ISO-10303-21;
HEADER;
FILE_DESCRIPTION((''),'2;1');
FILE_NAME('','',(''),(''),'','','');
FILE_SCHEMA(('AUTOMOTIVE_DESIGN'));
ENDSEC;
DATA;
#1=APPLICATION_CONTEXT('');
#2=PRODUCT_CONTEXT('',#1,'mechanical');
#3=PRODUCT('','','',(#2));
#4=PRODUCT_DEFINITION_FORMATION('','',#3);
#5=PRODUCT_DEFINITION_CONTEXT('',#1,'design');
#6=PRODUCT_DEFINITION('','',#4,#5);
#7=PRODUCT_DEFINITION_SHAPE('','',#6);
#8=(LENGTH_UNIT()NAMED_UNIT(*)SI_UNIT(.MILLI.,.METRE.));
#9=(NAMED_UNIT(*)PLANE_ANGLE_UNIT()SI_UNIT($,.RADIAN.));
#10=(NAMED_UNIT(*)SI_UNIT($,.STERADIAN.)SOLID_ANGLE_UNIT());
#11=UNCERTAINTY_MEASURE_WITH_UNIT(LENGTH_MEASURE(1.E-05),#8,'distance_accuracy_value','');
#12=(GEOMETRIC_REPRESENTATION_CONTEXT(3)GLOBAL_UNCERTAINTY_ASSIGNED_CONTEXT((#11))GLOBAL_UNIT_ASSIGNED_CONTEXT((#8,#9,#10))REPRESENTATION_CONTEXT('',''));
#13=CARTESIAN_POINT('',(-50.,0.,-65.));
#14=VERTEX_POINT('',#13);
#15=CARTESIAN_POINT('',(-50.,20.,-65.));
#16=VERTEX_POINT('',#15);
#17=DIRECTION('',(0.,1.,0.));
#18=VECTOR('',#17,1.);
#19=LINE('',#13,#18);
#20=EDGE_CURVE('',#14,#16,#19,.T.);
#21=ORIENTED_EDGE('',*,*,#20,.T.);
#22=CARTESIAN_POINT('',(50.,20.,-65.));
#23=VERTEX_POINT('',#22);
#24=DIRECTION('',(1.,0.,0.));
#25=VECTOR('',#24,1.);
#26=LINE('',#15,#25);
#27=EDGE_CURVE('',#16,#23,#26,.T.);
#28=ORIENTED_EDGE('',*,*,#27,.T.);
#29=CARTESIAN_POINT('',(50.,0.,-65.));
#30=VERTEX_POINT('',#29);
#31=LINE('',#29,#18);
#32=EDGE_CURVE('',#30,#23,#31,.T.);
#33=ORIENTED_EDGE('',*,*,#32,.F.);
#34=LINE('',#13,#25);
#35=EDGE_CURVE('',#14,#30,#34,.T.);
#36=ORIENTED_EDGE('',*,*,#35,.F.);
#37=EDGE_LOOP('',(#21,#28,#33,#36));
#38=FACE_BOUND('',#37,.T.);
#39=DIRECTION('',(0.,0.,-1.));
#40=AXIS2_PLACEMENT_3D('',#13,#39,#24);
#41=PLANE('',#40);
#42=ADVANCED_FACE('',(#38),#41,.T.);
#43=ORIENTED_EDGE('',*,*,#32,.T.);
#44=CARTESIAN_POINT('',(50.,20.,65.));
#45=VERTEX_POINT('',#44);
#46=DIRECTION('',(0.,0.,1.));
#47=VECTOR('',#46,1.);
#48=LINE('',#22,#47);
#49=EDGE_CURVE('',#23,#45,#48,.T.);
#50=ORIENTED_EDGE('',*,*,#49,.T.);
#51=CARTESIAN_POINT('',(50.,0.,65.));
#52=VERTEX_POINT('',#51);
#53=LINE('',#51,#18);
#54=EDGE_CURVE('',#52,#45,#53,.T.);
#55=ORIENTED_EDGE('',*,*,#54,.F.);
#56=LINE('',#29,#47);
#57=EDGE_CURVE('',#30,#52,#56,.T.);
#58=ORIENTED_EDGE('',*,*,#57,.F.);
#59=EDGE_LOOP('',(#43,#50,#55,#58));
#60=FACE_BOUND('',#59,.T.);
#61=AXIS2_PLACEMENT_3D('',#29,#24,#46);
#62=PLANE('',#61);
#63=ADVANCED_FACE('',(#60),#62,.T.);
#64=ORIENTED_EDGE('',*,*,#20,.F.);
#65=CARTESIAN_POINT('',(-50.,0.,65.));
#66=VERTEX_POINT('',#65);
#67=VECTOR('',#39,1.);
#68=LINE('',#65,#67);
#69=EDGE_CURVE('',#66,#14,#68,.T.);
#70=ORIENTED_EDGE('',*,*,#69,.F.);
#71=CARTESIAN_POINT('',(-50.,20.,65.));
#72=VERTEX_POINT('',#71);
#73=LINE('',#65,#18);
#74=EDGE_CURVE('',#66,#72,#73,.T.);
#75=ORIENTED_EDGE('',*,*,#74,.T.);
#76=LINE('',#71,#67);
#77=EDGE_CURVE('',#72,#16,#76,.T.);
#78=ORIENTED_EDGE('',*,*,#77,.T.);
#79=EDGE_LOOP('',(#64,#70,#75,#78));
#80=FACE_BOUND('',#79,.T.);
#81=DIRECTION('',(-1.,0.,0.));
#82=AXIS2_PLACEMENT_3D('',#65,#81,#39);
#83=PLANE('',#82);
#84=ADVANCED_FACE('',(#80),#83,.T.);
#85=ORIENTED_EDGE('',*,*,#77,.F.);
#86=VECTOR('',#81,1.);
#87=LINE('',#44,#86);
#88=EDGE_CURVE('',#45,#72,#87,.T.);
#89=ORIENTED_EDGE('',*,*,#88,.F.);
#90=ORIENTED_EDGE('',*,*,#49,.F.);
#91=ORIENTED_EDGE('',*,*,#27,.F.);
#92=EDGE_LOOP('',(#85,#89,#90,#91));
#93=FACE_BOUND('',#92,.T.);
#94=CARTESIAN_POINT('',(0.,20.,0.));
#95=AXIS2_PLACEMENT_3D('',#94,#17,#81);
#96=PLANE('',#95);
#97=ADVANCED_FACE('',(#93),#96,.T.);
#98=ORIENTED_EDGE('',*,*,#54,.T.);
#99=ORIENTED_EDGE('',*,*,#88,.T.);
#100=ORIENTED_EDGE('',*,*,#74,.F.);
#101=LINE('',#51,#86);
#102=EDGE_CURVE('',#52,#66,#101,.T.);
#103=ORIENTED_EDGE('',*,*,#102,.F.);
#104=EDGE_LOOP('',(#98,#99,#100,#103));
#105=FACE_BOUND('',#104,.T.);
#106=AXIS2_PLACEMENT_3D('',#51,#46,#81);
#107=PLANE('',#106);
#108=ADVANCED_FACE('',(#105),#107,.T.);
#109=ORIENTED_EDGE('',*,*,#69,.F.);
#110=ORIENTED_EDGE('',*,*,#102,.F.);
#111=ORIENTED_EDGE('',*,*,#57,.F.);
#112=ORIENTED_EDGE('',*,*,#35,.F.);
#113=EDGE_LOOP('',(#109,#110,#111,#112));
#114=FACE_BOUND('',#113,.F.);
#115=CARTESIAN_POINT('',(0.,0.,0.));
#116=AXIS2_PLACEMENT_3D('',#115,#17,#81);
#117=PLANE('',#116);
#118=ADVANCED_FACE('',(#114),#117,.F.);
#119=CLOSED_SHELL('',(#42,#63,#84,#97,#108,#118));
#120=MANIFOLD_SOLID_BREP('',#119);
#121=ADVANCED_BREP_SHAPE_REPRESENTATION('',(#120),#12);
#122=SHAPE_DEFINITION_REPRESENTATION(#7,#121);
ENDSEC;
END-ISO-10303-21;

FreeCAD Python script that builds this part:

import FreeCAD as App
import Part
import Sketcher

V = App.Vector
Q = App.Units.Quantity

doc = App.newDocument("Part")
params = doc.addObject("Spreadsheet::Sheet", "Params")
for row, (alias, value) in enumerate([
    ("sketch1_width", "3.937 in"),
    ("pad1_length", "0.7874016 in"),
], start=1):
    params.set(f"A{row}", alias)
    params.set(f"B{row}", "=" + value)
    params.setAlias(f"B{row}", alias)

body = doc.addObject("PartDesign::Body", "Body")

sketch1 = body.newObject("Sketcher::SketchObject", "Sketch")
sketch1.AttachmentSupport = (doc.getObject("XZ_Plane"), [""])
sketch1.MapMode = "FlatFace"
sketch1.addGeometry([
    Part.LineSegment(V(-50, 65, 0), V(50, 65, 0)),
    Part.LineSegment(V(50, 65, 0), V(50, -65, 0)),
    Part.LineSegment(V(50, -65, 0), V(-50, -65, 0)),
    Part.LineSegment(V(-50, -65, 0), V(-50, 65, 0)),
], False)
sketch1.addConstraint([
    Sketcher.Constraint("Coincident", 0, 2, 1, 1),
    Sketcher.Constraint("Coincident", 1, 2, 2, 1),
    Sketcher.Constraint("Coincident", 2, 2, 3, 1),
    Sketcher.Constraint("Coincident", 3, 2, 0, 1),
    Sketcher.Constraint("Horizontal", 0),
    Sketcher.Constraint("Vertical", 1),
    Sketcher.Constraint("Horizontal", 2),
    Sketcher.Constraint("Vertical", 3),
    Sketcher.Constraint("Symmetric", 0, 2, 2, 2, -1, 1),
    Sketcher.Constraint("DistanceX", 0, 1, 0, 2, Q("3.937 in")),
    Sketcher.Constraint("DistanceY", 1, 2, 1, 1, Q("5.1181 in")),
])
sketch1.setExpression("Constraints[9]", "Params.sketch1_width")
pad1 = body.newObject("PartDesign::Pad", "Pad")
pad1.Profile = sketch1
pad1.setExpression("Length", "Params.pad1_length")
pad1.Reversed = True

doc.recompute()
